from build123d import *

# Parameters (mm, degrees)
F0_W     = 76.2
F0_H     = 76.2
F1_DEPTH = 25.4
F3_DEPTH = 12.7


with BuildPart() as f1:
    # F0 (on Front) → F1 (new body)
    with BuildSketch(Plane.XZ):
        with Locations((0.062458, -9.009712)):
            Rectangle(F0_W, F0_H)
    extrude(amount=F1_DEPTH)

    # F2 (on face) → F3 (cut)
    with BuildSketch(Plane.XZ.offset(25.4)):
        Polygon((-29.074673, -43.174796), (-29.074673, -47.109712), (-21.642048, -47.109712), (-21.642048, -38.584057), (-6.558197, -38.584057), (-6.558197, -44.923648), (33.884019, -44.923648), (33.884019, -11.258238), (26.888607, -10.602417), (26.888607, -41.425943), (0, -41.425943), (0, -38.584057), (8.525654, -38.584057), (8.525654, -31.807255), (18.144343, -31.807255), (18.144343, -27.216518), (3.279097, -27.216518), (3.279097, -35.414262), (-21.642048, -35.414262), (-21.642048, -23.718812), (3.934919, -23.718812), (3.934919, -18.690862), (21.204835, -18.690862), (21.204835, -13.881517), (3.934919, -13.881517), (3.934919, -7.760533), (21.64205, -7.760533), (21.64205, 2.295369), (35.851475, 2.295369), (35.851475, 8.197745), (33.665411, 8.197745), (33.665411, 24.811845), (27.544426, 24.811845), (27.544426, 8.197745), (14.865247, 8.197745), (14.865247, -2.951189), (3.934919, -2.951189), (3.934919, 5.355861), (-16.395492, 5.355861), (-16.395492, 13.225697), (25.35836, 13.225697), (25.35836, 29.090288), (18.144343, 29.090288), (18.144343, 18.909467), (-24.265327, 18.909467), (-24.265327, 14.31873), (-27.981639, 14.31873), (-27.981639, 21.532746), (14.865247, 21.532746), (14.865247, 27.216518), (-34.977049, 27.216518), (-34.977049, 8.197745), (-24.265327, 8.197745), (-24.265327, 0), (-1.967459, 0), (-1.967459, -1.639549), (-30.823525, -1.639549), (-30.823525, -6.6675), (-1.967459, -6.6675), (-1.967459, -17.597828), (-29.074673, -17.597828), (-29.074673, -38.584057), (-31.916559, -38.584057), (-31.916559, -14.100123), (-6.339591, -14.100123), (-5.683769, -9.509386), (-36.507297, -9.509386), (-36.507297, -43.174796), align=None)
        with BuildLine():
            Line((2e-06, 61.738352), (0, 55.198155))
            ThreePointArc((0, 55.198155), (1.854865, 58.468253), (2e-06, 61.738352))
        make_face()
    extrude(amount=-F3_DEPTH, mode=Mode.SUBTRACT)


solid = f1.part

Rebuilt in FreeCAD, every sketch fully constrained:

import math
import FreeCAD as App
import Part
import Sketcher
Q = App.Units.Quantity

doc = App.newDocument("Part")
body = doc.addObject("PartDesign::Body", "Body")

# Sketch on XZ plane
sketch1 = doc.addObject("Sketcher::SketchObject", "Sketch")
body.addObject(sketch1)
sketch1.AttachmentSupport = (doc.XZ_Plane, [""])
sketch1.MapMode = "FlatFace"
sketch1.addGeometry([
    Part.LineSegment(App.Vector(-38, 29, 0), App.Vector(-38, -47, 0)),
    Part.LineSegment(App.Vector(-38, -47, 0), App.Vector(38, -47, 0)),
    Part.LineSegment(App.Vector(38, -47, 0), App.Vector(38, 29, 0)),
    Part.LineSegment(App.Vector(38, 29, 0), App.Vector(-38, 29, 0)),
], False)
sketch1.addConstraint([
    Sketcher.Constraint("Coincident", 0, 2, 1, 1),
    Sketcher.Constraint("Coincident", 1, 2, 2, 1),
    Sketcher.Constraint("Coincident", 2, 2, 3, 1),
    Sketcher.Constraint("Coincident", 3, 2, 0, 1),
    Sketcher.Constraint("Vertical", 0),
    Sketcher.Constraint("Horizontal", 1),
    Sketcher.Constraint("Vertical", 2),
    Sketcher.Constraint("Horizontal", 3),
    Sketcher.Constraint("Equal", 3, 0),
    Sketcher.Constraint("DistanceX", 1, 1, 1, 2, Q("3 in")),
    Sketcher.Constraint("DistanceY", -1, 1, 2, 2, Q("29.090288 mm")),
    Sketcher.Constraint("DistanceX", 0, 2, -1, 1, Q("38.037542 mm")),
])
pad1 = doc.addObject("PartDesign::Pad", "Pad")
body.addObject(pad1)
pad1.Profile = sketch1
pad1.Length = Q("1 in")

# Sketch on XZ plane
sketch2 = doc.addObject("Sketcher::SketchObject", "Sketch001")
body.addObject(sketch2)
sketch2.AttachmentSupport = (doc.XZ_Plane, [""])
sketch2.MapMode = "FlatFace"
sketch2.AttachmentOffset = App.Placement(App.Vector(0, 0, 1 * 25.4), App.Rotation())
sketch2.addGeometry([
    Part.LineSegment(App.Vector(-29.1, -43.2, 0), App.Vector(-29.1, -47.1, 0)),  # 0
    Part.LineSegment(App.Vector(-29.1, -47.1, 0), App.Vector(-21.6, -47.1, 0)),  # 1
    Part.LineSegment(App.Vector(-21.6, -47.1, 0), App.Vector(-21.6, -38.6, 0)),  # 2
    Part.LineSegment(App.Vector(-21.6, -38.6, 0), App.Vector(-6.6, -38.6, 0)),  # 3
    Part.LineSegment(App.Vector(-6.6, -38.6, 0), App.Vector(-6.6, -44.9, 0)),  # 4
    Part.LineSegment(App.Vector(-6.6, -44.9, 0), App.Vector(33.9, -44.9, 0)),  # 5
    Part.LineSegment(App.Vector(33.9, -44.9, 0), App.Vector(33.9, -11.3, 0)),  # 6
    Part.LineSegment(App.Vector(33.9, -11.3, 0), App.Vector(26.9, -10.6, 0)),  # 7
    Part.LineSegment(App.Vector(26.9, -10.6, 0), App.Vector(26.9, -41.4, 0)),  # 8
    Part.LineSegment(App.Vector(26.9, -41.4, 0), App.Vector(0, -41.4, 0)),  # 9
    Part.LineSegment(App.Vector(0, -41.4, 0), App.Vector(0, -38.6, 0)),  # 10
    Part.LineSegment(App.Vector(0, -38.6, 0), App.Vector(8.5, -38.6, 0)),  # 11
    Part.LineSegment(App.Vector(8.5, -38.6, 0), App.Vector(8.5, -31.8, 0)),  # 12
    Part.LineSegment(App.Vector(8.5, -31.8, 0), App.Vector(18.1, -31.8, 0)),  # 13
    Part.LineSegment(App.Vector(18.1, -31.8, 0), App.Vector(18.1, -27.2, 0)),  # 14
    Part.LineSegment(App.Vector(18.1, -27.2, 0), App.Vector(3.3, -27.2, 0)),  # 15
    Part.LineSegment(App.Vector(3.3, -27.2, 0), App.Vector(3.3, -35.4, 0)),  # 16
    Part.LineSegment(App.Vector(3.3, -35.4, 0), App.Vector(-21.6, -35.4, 0)),  # 17
    Part.LineSegment(App.Vector(-21.6, -35.4, 0), App.Vector(-21.6, -23.7, 0)),  # 18
    Part.LineSegment(App.Vector(-21.6, -23.7, 0), App.Vector(3.9, -23.7, 0)),  # 19
    Part.LineSegment(App.Vector(3.9, -23.7, 0), App.Vector(3.9, -18.7, 0)),  # 20
    Part.LineSegment(App.Vector(3.9, -18.7, 0), App.Vector(21.2, -18.7, 0)),  # 21
    Part.LineSegment(App.Vector(21.2, -18.7, 0), App.Vector(21.2, -13.9, 0)),  # 22
    Part.LineSegment(App.Vector(21.2, -13.9, 0), App.Vector(3.9, -13.9, 0)),  # 23
    Part.LineSegment(App.Vector(3.9, -13.9, 0), App.Vector(3.9, -7.8, 0)),  # 24
    Part.LineSegment(App.Vector(3.9, -7.8, 0), App.Vector(21.6, -7.8, 0)),  # 25
    Part.LineSegment(App.Vector(21.6, -7.8, 0), App.Vector(21.6, 2.3, 0)),  # 26
    Part.LineSegment(App.Vector(21.6, 2.3, 0), App.Vector(35.9, 2.3, 0)),  # 27
    Part.LineSegment(App.Vector(35.9, 2.3, 0), App.Vector(35.9, 8.2, 0)),  # 28
    Part.LineSegment(App.Vector(35.9, 8.2, 0), App.Vector(33.7, 8.2, 0)),  # 29
    Part.LineSegment(App.Vector(33.7, 8.2, 0), App.Vector(33.7, 24.8, 0)),  # 30
    Part.LineSegment(App.Vector(33.7, 24.8, 0), App.Vector(27.5, 24.8, 0)),  # 31
    Part.LineSegment(App.Vector(27.5, 24.8, 0), App.Vector(27.5, 8.2, 0)),  # 32
    Part.LineSegment(App.Vector(27.5, 8.2, 0), App.Vector(14.9, 8.2, 0)),  # 33
    Part.LineSegment(App.Vector(14.9, 8.2, 0), App.Vector(14.9, -3, 0)),  # 34
    Part.LineSegment(App.Vector(14.9, -3, 0), App.Vector(3.9, -3, 0)),  # 35
    Part.LineSegment(App.Vector(3.9, -3, 0), App.Vector(3.9, 5.4, 0)),  # 36
    Part.LineSegment(App.Vector(3.9, 5.4, 0), App.Vector(-16.4, 5.4, 0)),  # 37
    Part.LineSegment(App.Vector(-16.4, 5.4, 0), App.Vector(-16.4, 13.2, 0)),  # 38
    Part.LineSegment(App.Vector(-16.4, 13.2, 0), App.Vector(25.4, 13.2, 0)),  # 39
    Part.LineSegment(App.Vector(25.4, 13.2, 0), App.Vector(25.4, 29.1, 0)),  # 40
    Part.LineSegment(App.Vector(25.4, 29.1, 0), App.Vector(18.1, 29.1, 0)),  # 41
    Part.LineSegment(App.Vector(18.1, 29.1, 0), App.Vector(18.1, 18.9, 0)),  # 42
    Part.LineSegment(App.Vector(18.1, 18.9, 0), App.Vector(-24.3, 18.9, 0)),  # 43
    Part.LineSegment(App.Vector(-24.3, 18.9, 0), App.Vector(-24.3, 14.3, 0)),  # 44
    Part.LineSegment(App.Vector(-24.3, 14.3, 0), App.Vector(-28, 14.3, 0)),  # 45
    Part.LineSegment(App.Vector(-28, 14.3, 0), App.Vector(-28, 21.5, 0)),  # 46
    Part.LineSegment(App.Vector(-28, 21.5, 0), App.Vector(14.9, 21.5, 0)),  # 47
    Part.LineSegment(App.Vector(14.9, 21.5, 0), App.Vector(14.9, 27.2, 0)),  # 48
    Part.LineSegment(App.Vector(14.9, 27.2, 0), App.Vector(-35, 27.2, 0)),  # 49
    Part.LineSegment(App.Vector(-35, 27.2, 0), App.Vector(-35, 8.2, 0)),  # 50
    Part.LineSegment(App.Vector(-35, 8.2, 0), App.Vector(-24.3, 8.2, 0)),  # 51
    Part.LineSegment(App.Vector(-24.3, 8.2, 0), App.Vector(-24.3, 0, 0)),  # 52
    Part.LineSegment(App.Vector(-24.3, 0, 0), App.Vector(-2, 0, 0)),  # 53
    Part.LineSegment(App.Vector(-2, 0, 0), App.Vector(-2, -1.6, 0)),  # 54
    Part.LineSegment(App.Vector(-2, -1.6, 0), App.Vector(-30.8, -1.6, 0)),  # 55
    Part.LineSegment(App.Vector(-30.8, -1.6, 0), App.Vector(-30.8, -6.7, 0)),  # 56
    Part.LineSegment(App.Vector(-30.8, -6.7, 0), App.Vector(-2, -6.7, 0)),  # 57
    Part.LineSegment(App.Vector(-2, -6.7, 0), App.Vector(-2, -17.6, 0)),  # 58
    Part.LineSegment(App.Vector(-2, -17.6, 0), App.Vector(-29.1, -17.6, 0)),  # 59
    Part.LineSegment(App.Vector(-29.1, -17.6, 0), App.Vector(-29.1, -38.6, 0)),  # 60
    Part.LineSegment(App.Vector(-29.1, -38.6, 0), App.Vector(-31.9, -38.6, 0)),  # 61
    Part.LineSegment(App.Vector(-31.9, -38.6, 0), App.Vector(-31.9, -14.1, 0)),  # 62
    Part.LineSegment(App.Vector(-31.9, -14.1, 0), App.Vector(-6.3, -14.1, 0)),  # 63
    Part.LineSegment(App.Vector(-6.3, -14.1, 0), App.Vector(-5.7, -9.5, 0)),  # 64
    Part.LineSegment(App.Vector(-5.7, -9.5, 0), App.Vector(-36.5, -9.5, 0)),  # 65
    Part.LineSegment(App.Vector(-36.5, -9.5, 0), App.Vector(-36.5, -43.2, 0)),  # 66
    Part.LineSegment(App.Vector(-36.5, -43.2, 0), App.Vector(-29.1, -43.2, 0)),  # 67
    Part.LineSegment(App.Vector(0, 61.7, 0), App.Vector(0, 55.2, 0)),  # 68
    Part.ArcOfCircle(Part.Circle(App.Vector(-2, 58.5, 0), App.Vector(0, 0, 1), 3.8), math.radians(-59), math.radians(59)),  # 69
], False)
sketch2.addConstraint([
    Sketcher.Constraint("Coincident", 0, 2, 1, 1),
    Sketcher.Constraint("Coincident", 1, 2, 2, 1),
    Sketcher.Constraint("Coincident", 2, 2, 3, 1),
    Sketcher.Constraint("Coincident", 3, 2, 4, 1),
    Sketcher.Constraint("Coincident", 4, 2, 5, 1),
    Sketcher.Constraint("Coincident", 5, 2, 6, 1),
    Sketcher.Constraint("Coincident", 6, 2, 7, 1),
    Sketcher.Constraint("Coincident", 7, 2, 8, 1),
    Sketcher.Constraint("Coincident", 8, 2, 9, 1),
    Sketcher.Constraint("Coincident", 9, 2, 10, 1),
    Sketcher.Constraint("Coincident", 10, 2, 11, 1),
    Sketcher.Constraint("Coincident", 11, 2, 12, 1),
    Sketcher.Constraint("Coincident", 12, 2, 13, 1),
    Sketcher.Constraint("Coincident", 13, 2, 14, 1),
    Sketcher.Constraint("Coincident", 14, 2, 15, 1),
    Sketcher.Constraint("Coincident", 15, 2, 16, 1),
    Sketcher.Constraint("Coincident", 16, 2, 17, 1),
    Sketcher.Constraint("Coincident", 17, 2, 18, 1),
    Sketcher.Constraint("Coincident", 18, 2, 19, 1),
    Sketcher.Constraint("Coincident", 19, 2, 20, 1),
    Sketcher.Constraint("Coincident", 20, 2, 21, 1),
    Sketcher.Constraint("Coincident", 21, 2, 22, 1),
    Sketcher.Constraint("Coincident", 22, 2, 23, 1),
    Sketcher.Constraint("Coincident", 23, 2, 24, 1),
    Sketcher.Constraint("Coincident", 24, 2, 25, 1),
    Sketcher.Constraint("Coincident", 25, 2, 26, 1),
    Sketcher.Constraint("Coincident", 26, 2, 27, 1),
    Sketcher.Constraint("Coincident", 27, 2, 28, 1),
    Sketcher.Constraint("Coincident", 28, 2, 29, 1),
    Sketcher.Constraint("Coincident", 29, 2, 30, 1),
    Sketcher.Constraint("Coincident", 30, 2, 31, 1),
    Sketcher.Constraint("Coincident", 31, 2, 32, 1),
    Sketcher.Constraint("Coincident", 32, 2, 33, 1),
    Sketcher.Constraint("Coincident", 33, 2, 34, 1),
    Sketcher.Constraint("Coincident", 34, 2, 35, 1),
    Sketcher.Constraint("Coincident", 35, 2, 36, 1),
    Sketcher.Constraint("Coincident", 36, 2, 37, 1),
    Sketcher.Constraint("Coincident", 37, 2, 38, 1),
    Sketcher.Constraint("Coincident", 38, 2, 39, 1),
    Sketcher.Constraint("Coincident", 39, 2, 40, 1),
    Sketcher.Constraint("Coincident", 40, 2, 41, 1),
    Sketcher.Constraint("Coincident", 41, 2, 42, 1),
    Sketcher.Constraint("Coincident", 42, 2, 43, 1),
    Sketcher.Constraint("Coincident", 43, 2, 44, 1),
    Sketcher.Constraint("Coincident", 44, 2, 45, 1),
    Sketcher.Constraint("Coincident", 45, 2, 46, 1),
    Sketcher.Constraint("Coincident", 46, 2, 47, 1),
    Sketcher.Constraint("Coincident", 47, 2, 48, 1),
    Sketcher.Constraint("Coincident", 48, 2, 49, 1),
    Sketcher.Constraint("Coincident", 49, 2, 50, 1),
    Sketcher.Constraint("Coincident", 50, 2, 51, 1),
    Sketcher.Constraint("Coincident", 51, 2, 52, 1),
    Sketcher.Constraint("Coincident", 52, 2, 53, 1),
    Sketcher.Constraint("Coincident", 53, 2, 54, 1),
    Sketcher.Constraint("Coincident", 54, 2, 55, 1),
    Sketcher.Constraint("Coincident", 55, 2, 56, 1),
    Sketcher.Constraint("Coincident", 56, 2, 57, 1),
    Sketcher.Constraint("Coincident", 57, 2, 58, 1),
    Sketcher.Constraint("Coincident", 58, 2, 59, 1),
    Sketcher.Constraint("Coincident", 59, 2, 60, 1),
    Sketcher.Constraint("Coincident", 60, 2, 61, 1),
    Sketcher.Constraint("Coincident", 61, 2, 62, 1),
    Sketcher.Constraint("Coincident", 62, 2, 63, 1),
    Sketcher.Constraint("Coincident", 63, 2, 64, 1),
    Sketcher.Constraint("Coincident", 64, 2, 65, 1),
    Sketcher.Constraint("Coincident", 65, 2, 66, 1),
    Sketcher.Constraint("Coincident", 66, 2, 67, 1),
    Sketcher.Constraint("Coincident", 67, 2, 0, 1),
    Sketcher.Constraint("Coincident", 68, 1, 69, 2),
    Sketcher.Constraint("Coincident", 69, 1, 68, 2),
    Sketcher.Constraint("Vertical", 0),
    Sketcher.Constraint("Horizontal", 1),
    Sketcher.Constraint("Vertical", 2),
    Sketcher.Constraint("Horizontal", 3),
    Sketcher.Constraint("Vertical", 4),
    Sketcher.Constraint("Horizontal", 5),
    Sketcher.Constraint("Vertical", 6),
    Sketcher.Constraint("Vertical", 8),
    Sketcher.Constraint("Horizontal", 9),
    Sketcher.Constraint("Vertical", 10),
    Sketcher.Constraint("Horizontal", 11),
    Sketcher.Constraint("Vertical", 12),
    Sketcher.Constraint("Horizontal", 13),
    Sketcher.Constraint("Vertical", 14),
    Sketcher.Constraint("Horizontal", 15),
    Sketcher.Constraint("Vertical", 16),
    Sketcher.Constraint("Horizontal", 17),
    Sketcher.Constraint("Vertical", 18),
    Sketcher.Constraint("Horizontal", 19),
    Sketcher.Constraint("Vertical", 20),
    Sketcher.Constraint("Horizontal", 21),
    Sketcher.Constraint("Vertical", 22),
    Sketcher.Constraint("Horizontal", 23),
    Sketcher.Constraint("Vertical", 24),
    Sketcher.Constraint("Horizontal", 25),
    Sketcher.Constraint("Vertical", 26),
    Sketcher.Constraint("Horizontal", 27),
    Sketcher.Constraint("Vertical", 28),
    Sketcher.Constraint("Horizontal", 29),
    Sketcher.Constraint("Vertical", 30),
    Sketcher.Constraint("Horizontal", 31),
    Sketcher.Constraint("Vertical", 32),
    Sketcher.Constraint("Horizontal", 33),
    Sketcher.Constraint("Vertical", 34),
    Sketcher.Constraint("Horizontal", 35),
    Sketcher.Constraint("Vertical", 36),
    Sketcher.Constraint("Horizontal", 37),
    Sketcher.Constraint("Vertical", 38),
    Sketcher.Constraint("Horizontal", 39),
    Sketcher.Constraint("Vertical", 40),
    Sketcher.Constraint("Horizontal", 41),
    Sketcher.Constraint("Vertical", 42),
    Sketcher.Constraint("Horizontal", 43),
    Sketcher.Constraint("Vertical", 44),
    Sketcher.Constraint("Horizontal", 45),
    Sketcher.Constraint("Vertical", 46),
    Sketcher.Constraint("Horizontal", 47),
    Sketcher.Constraint("Vertical", 48),
    Sketcher.Constraint("Horizontal", 49),
    Sketcher.Constraint("Vertical", 50),
    Sketcher.Constraint("Horizontal", 51),
    Sketcher.Constraint("Vertical", 52),
    Sketcher.Constraint("Horizontal", 53),
    Sketcher.Constraint("Vertical", 54),
    Sketcher.Constraint("Horizontal", 55),
    Sketcher.Constraint("Vertical", 56),
    Sketcher.Constraint("Horizontal", 57),
    Sketcher.Constraint("Vertical", 58),
    Sketcher.Constraint("Horizontal", 59),
    Sketcher.Constraint("Vertical", 60),
    Sketcher.Constraint("Horizontal", 61),
    Sketcher.Constraint("Vertical", 62),
    Sketcher.Constraint("Horizontal", 63),
    Sketcher.Constraint("Horizontal", 65),
    Sketcher.Constraint("Vertical", 66),
    Sketcher.Constraint("Horizontal", 67),
    Sketcher.Constraint("PointOnObject", 9, 2, -2),
    Sketcher.Constraint("PointOnObject", 52, 2, -1),
    Sketcher.Constraint("PointOnObject", 69, 1, -2),
    Sketcher.Constraint("Horizontal", 3, 2, 10, 2),
    Sketcher.Constraint("Horizontal", 29, 2, 32, 2),
    Sketcher.Constraint("Horizontal", 33, 2, 50, 2),
    Sketcher.Constraint("Horizontal", 11, 2, 60, 2),
    Sketcher.Constraint("Vertical", 2, 2, 17, 2),
    Sketcher.Constraint("Vertical", 20, 2, 23, 2),
    Sketcher.Constraint("Vertical", 24, 2, 35, 2),
    Sketcher.Constraint("Vertical", 14, 2, 41, 2),
    Sketcher.Constraint("Vertical", 34, 2, 47, 2),
    Sketcher.Constraint("Vertical", 44, 2, 51, 2),
    Sketcher.Constraint("Vertical", 54, 2, 57, 2),
    Sketcher.Constraint("Vertical", 0, 2, 59, 2),
    Sketcher.Constraint("Vertical", 68, 1, 69, 1),
    Sketcher.Constraint("Equal", 19, 63),
    Sketcher.Constraint("Equal", 1, 67),
    Sketcher.Constraint("Equal", 11, 2),
    Sketcher.Constraint("Equal", 61, 10),
    Sketcher.Constraint("Equal", 31, 24),
    Sketcher.Constraint("Equal", 14, 44),
    Sketcher.Constraint("Equal", 41, 46),
    Sketcher.Constraint("Equal", 16, 52),
    Sketcher.Constraint("Equal", 20, 56),
    Sketcher.Constraint("Equal", 35, 58),
    Sketcher.Constraint("Equal", 6, 66),
    Sketcher.Constraint("Radius", 69, Q("0.15 in")),
    Sketcher.Constraint("DistanceY", 30, 1, 30, 2, Q("16.6141 mm")),
    Sketcher.Constraint("DistanceY", 56, 2, -1, 1, Q("0.2625 in")),
    Sketcher.Constraint("DistanceX", 3, 1, 3, 2, Q("15.083851 mm")),
    Sketcher.Constraint("DistanceX", 13, 1, 13, 2, Q("9.618689 mm")),
    Sketcher.Constraint("DistanceX", 25, 1, 25, 2, Q("17.707131 mm")),
    Sketcher.Constraint("DistanceX", 33, 2, 33, 1, Q("12.679179 mm")),
    Sketcher.Constraint("DistanceX", 37, 2, 37, 1, Q("20.330411 mm")),
    Sketcher.Constraint("DistanceX", 43, 2, 43, 1, Q("42.40967 mm")),
    Sketcher.Constraint("DistanceX", 63, 1, 63, 2, Q("25.576968 mm")),
    Sketcher.Constraint("DistanceX", 65, 2, 65, 1, Q("30.823528 mm")),
    Sketcher.Constraint("DistanceY", 4, 2, 4, 1, Q("6.339591 mm")),
    Sketcher.Constraint("DistanceY", 6, 1, 6, 2, Q("33.66541 mm")),
    Sketcher.Constraint("DistanceY", 18, 1, 18, 2, Q("11.69545 mm")),
    Sketcher.Constraint("DistanceY", 20, 1, 20, 2, Q("5.02795 mm")),
    Sketcher.Constraint("DistanceY", 36, 1, 36, 2, Q("8.30705 mm")),
    Sketcher.Constraint("DistanceY", 40, 1, 40, 2, Q("15.864591 mm")),
    Sketcher.Constraint("DistanceY", 42, 2, 42, 1, Q("10.180821 mm")),
    Sketcher.Constraint("DistanceY", 60, 2, 60, 1, Q("20.986229 mm")),
    Sketcher.Constraint("DistanceX", 1, 1, 1, 2, Q("7.432625 mm")),
    Sketcher.Constraint("DistanceX", 5, 1, 5, 2, Q("40.442216 mm")),
    Sketcher.Constraint("DistanceX", 9, 2, 9, 1, Q("26.888607 mm")),
    Sketcher.Constraint("DistanceX", 11, 1, 11, 2, Q("8.525654 mm")),
    Sketcher.Constraint("DistanceX", 15, 2, 15, 1, Q("14.865246 mm")),
    Sketcher.Constraint("DistanceX", 17, 2, 17, 1, Q("24.921145 mm")),
    Sketcher.Constraint("DistanceX", 21, 1, 21, 2, Q("17.269916 mm")),
    Sketcher.Constraint("DistanceX", 27, 1, 27, 2, Q("14.209425 mm")),
    Sketcher.Constraint("DistanceX", 29, 2, 29, 1, Q("2.186064 mm")),
    Sketcher.Constraint("DistanceX", 31, 2, 31, 1, Q("6.120985 mm")),
    Sketcher.Constraint("DistanceX", 39, 1, 39, 2, Q("41.753852 mm")),
    Sketcher.Constraint("DistanceX", 45, 2, 45, 1, Q("3.716312 mm")),
    Sketcher.Constraint("DistanceX", 49, 2, 49, 1, Q("49.842296 mm")),
    Sketcher.Constraint("DistanceX", 53, 1, 53, 2, Q("22.297868 mm")),
    Sketcher.Constraint("DistanceX", 55, 2, 55, 1, Q("28.856066 mm")),
    Sketcher.Constraint("DistanceX", 61, 2, 61, 1, Q("2.841886 mm")),
    Sketcher.Constraint("DistanceY", 0, 2, 0, 1, Q("3.934916 mm")),
    Sketcher.Constraint("DistanceY", 8, 2, 8, 1, Q("30.823526 mm")),
    Sketcher.Constraint("DistanceY", 12, 1, 12, 2, Q("6.776802 mm")),
    Sketcher.Constraint("DistanceY", 14, 1, 14, 2, Q("4.590737 mm")),
    Sketcher.Constraint("DistanceY", 16, 2, 16, 1, Q("8.197744 mm")),
    Sketcher.Constraint("DistanceY", 22, 1, 22, 2, Q("4.809345 mm")),
    Sketcher.Constraint("DistanceY", 26, 1, 26, 2, Q("10.055902 mm")),
    Sketcher.Constraint("DistanceY", 34, 2, 34, 1, Q("11.148934 mm")),
    Sketcher.Constraint("DistanceY", 38, 1, 38, 2, Q("7.869836 mm")),
    Sketcher.Constraint("DistanceY", 48, 1, 48, 2, Q("5.683772 mm")),
    Sketcher.Constraint("DistanceY", 62, 1, 62, 2, Q("24.483934 mm")),
    Sketcher.Constraint("Distance", 68, Q("6.540197 mm")),
    Sketcher.Constraint("DistanceY", -1, 1, 69, 3, Q("58.468254 mm")),
])
pocket1 = doc.addObject("PartDesign::Pocket", "Pocket")
body.addObject(pocket1)
pocket1.Profile = sketch2
pocket1.Length = Q("0.5 in")

doc.recompute()
